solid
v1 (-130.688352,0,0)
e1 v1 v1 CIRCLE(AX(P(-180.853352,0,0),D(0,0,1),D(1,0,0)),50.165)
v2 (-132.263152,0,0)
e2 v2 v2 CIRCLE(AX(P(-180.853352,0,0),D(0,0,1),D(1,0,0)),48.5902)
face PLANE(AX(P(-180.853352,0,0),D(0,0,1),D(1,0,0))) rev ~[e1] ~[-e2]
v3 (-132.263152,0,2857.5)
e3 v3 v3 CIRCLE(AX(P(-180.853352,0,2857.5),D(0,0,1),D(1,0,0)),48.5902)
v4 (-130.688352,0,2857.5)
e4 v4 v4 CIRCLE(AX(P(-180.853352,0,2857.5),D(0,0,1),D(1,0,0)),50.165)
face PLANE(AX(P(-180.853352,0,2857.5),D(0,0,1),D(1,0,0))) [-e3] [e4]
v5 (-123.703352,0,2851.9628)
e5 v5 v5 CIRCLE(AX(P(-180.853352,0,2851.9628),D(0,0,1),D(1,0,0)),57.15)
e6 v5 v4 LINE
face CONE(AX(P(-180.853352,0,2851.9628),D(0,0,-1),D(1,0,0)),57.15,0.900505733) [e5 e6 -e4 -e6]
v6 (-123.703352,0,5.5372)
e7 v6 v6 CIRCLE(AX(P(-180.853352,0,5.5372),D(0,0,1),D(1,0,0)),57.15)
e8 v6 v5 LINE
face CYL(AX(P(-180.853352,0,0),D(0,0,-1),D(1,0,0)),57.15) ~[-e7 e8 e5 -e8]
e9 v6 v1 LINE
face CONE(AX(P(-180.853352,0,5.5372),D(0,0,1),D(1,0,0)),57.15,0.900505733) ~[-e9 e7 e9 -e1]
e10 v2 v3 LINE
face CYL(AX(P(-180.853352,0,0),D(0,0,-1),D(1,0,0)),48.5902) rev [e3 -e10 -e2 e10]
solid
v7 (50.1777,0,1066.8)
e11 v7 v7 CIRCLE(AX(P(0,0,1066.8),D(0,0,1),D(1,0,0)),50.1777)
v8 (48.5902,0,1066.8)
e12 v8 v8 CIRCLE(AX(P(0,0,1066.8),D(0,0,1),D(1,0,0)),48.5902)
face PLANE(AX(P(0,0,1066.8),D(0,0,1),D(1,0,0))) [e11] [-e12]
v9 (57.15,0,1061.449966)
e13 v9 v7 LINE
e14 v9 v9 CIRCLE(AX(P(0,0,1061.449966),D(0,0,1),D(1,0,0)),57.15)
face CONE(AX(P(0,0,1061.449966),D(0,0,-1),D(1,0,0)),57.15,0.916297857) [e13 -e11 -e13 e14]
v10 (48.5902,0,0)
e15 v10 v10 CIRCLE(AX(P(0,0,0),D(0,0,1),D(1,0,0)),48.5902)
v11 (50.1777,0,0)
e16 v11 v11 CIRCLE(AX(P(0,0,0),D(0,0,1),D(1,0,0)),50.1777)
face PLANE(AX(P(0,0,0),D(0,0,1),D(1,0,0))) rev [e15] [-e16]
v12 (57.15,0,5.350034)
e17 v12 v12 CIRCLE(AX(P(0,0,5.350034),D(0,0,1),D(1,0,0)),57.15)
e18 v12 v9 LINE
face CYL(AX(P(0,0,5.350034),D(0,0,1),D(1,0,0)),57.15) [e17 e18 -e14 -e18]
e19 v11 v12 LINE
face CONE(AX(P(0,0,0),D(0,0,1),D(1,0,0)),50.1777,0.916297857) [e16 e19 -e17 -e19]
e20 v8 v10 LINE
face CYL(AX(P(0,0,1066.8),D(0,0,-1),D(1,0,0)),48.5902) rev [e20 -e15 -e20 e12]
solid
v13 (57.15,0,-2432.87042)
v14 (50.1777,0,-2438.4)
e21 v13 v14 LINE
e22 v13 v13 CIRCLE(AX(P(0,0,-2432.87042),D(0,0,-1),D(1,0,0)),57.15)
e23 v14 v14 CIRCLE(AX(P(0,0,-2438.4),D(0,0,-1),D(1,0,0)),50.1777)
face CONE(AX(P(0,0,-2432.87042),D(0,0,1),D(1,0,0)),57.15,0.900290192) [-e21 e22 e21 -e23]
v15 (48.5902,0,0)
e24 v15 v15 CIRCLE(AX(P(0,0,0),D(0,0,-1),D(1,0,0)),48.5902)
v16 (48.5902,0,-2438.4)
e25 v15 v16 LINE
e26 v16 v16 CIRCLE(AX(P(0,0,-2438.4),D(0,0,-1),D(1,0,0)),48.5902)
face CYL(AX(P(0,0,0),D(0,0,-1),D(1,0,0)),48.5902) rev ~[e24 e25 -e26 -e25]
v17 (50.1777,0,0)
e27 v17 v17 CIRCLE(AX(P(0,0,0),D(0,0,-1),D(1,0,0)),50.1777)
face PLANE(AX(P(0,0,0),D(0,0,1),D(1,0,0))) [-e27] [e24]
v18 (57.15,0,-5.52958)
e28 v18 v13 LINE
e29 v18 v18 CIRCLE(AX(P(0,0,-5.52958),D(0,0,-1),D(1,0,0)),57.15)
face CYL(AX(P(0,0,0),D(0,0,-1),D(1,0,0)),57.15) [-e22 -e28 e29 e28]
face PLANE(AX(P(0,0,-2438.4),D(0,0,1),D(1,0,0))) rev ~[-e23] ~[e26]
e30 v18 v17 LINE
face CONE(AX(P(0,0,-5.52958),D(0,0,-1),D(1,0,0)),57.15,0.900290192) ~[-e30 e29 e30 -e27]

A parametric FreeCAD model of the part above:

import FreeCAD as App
import Part
import Sketcher
Q = App.Units.Quantity


def edges_at(feature, points):
    """Names of the edges that pass closest to the given points."""
    edges = feature.Shape.Edges
    near = lambda p: min(range(len(edges)), key=lambda i: edges[i].distToShape(Part.Vertex(*p))[0])
    return sorted({f"Edge{near(p) + 1}" for p in points})


def add_polygon(sketch, points):
    """Adds a closed chain of lines whose ends are joined by coincident constraints."""
    first, n = sketch.GeometryCount, len(points)
    for a, b in zip(points, points[1:] + points[:1]):
        sketch.addGeometry(Part.LineSegment(App.Vector(*a, 0), App.Vector(*b, 0)), False)
    for i in range(n):
        sketch.addConstraint(Sketcher.Constraint("Coincident", first + i, 2, first + (i + 1) % n, 1))

doc = App.newDocument("Part")
body = doc.addObject("PartDesign::Body", "Body")

# Sketch on XZ plane
sketch1 = body.newObject("Sketcher::SketchObject", "Sketch")
sketch1.AttachmentSupport = (doc.getObject("XZ_Plane"), [""])
sketch1.MapMode = "FlatFace"
add_polygon(sketch1, [(50.2, 0), (57.1, 5.4), (57.1, 1061.4), (50.2, 1066.8), (48.6, 1066.8), (48.6, 0)])  # lines 0-5
sketch1.addConstraint(Sketcher.Constraint("Vertical", 1))
sketch1.addConstraint(Sketcher.Constraint("Horizontal", 3))
sketch1.addConstraint(Sketcher.Constraint("Vertical", 4))
sketch1.addConstraint(Sketcher.Constraint("Horizontal", 5))
sketch1.addConstraint(Sketcher.Constraint("PointOnObject", 4, 2, -1))
sketch1.addConstraint(Sketcher.Constraint("Vertical", 2, 2, 5, 2))
sketch1.addConstraint(Sketcher.Constraint("Equal", 0, 2))
sketch1.addConstraint(Sketcher.Constraint("DistanceY", 4, 2, 4, 1, Q("42 in")))
sketch1.addConstraint(Sketcher.Constraint("Angle", 0, Q("37.5 deg")))
sketch1.addConstraint(Sketcher.Constraint("DistanceX", 3, 2, 3, 1, Q("0.0625 in")))
sketch1.addConstraint(Sketcher.Constraint("DistanceX", -1, 1, 0, 2, Q("2.25 in")))
sketch1.addConstraint(Sketcher.Constraint("DistanceX", -1, 1, 3, 2, Q("1.913 in")))
revolution = body.newObject("PartDesign::Revolution", "Revolution")
revolution.Profile = sketch1
revolution.ReferenceAxis = (sketch1, ["V_Axis"])
revolution.Angle = 360
body2 = doc.addObject("PartDesign::Body", "Body001")

# Sketch on XY plane
sketch2 = body2.newObject("Sketcher::SketchObject", "Sketch001")
sketch2.AttachmentSupport = (doc.getObject("XY_Plane001"), [""])
sketch2.MapMode = "FlatFace"
sketch2.addGeometry(Part.Circle(App.Vector(0, 0, 0), App.Vector(0, 0, 1), 57), False)
sketch2.addGeometry(Part.Circle(App.Vector(0, 0, 0), App.Vector(0, 0, 1), 49), False)
sketch2.addConstraint(Sketcher.Constraint("Coincident", 0, 3, -1, 1))
sketch2.addConstraint(Sketcher.Constraint("Coincident", 1, 3, -1, 1))
sketch2.addConstraint(Sketcher.Constraint("Diameter", 0, Q("4.5 in")))
sketch2.addConstraint(Sketcher.Constraint("Diameter", 1, Q("3.826 in")))

# Sketch on XZ plane
sketch3 = body2.newObject("Sketcher::SketchObject", "Sketch002")
sketch3.AttachmentSupport = (doc.getObject("XZ_Plane001"), [""])
sketch3.MapMode = "FlatFace"
sketch3.addGeometry(Part.LineSegment(App.Vector(0, 0, 0), App.Vector(0, -2438, 0)), False)
sketch3.addConstraint(Sketcher.Constraint("Vertical", 0))
sketch3.addConstraint(Sketcher.Constraint("Coincident", 0, 1, -1, 1))
sketch3.addConstraint(Sketcher.Constraint("DistanceY", 0, 2, 0, 1, Q("96 in")))
doc.recompute()

additivepipe = body2.newObject("PartDesign::AdditivePipe", "AdditivePipe")
additivepipe.Profile = sketch2
additivepipe.Spine = (sketch3, ["Edge1"])
doc.recompute()

chamfer = body2.newObject("PartDesign::Chamfer", "Chamfer")
chamfer.Base = (additivepipe, edges_at(additivepipe, [(-57.15, 0, -2438.4)]))
chamfer.ChamferType = "Two distances"
chamfer.Size = Q("0.2177 in")
chamfer.Size2 = Q("0.2745 in")
doc.recompute()

chamfer2 = body2.newObject("PartDesign::Chamfer", "Chamfer001")
chamfer2.Base = (chamfer, edges_at(chamfer, [(-57.15, 0, 0)]))
chamfer2.ChamferType = "Two distances"
chamfer2.Size = Q("0.2177 in")
chamfer2.Size2 = Q("0.2745 in")
body3 = doc.addObject("PartDesign::Body", "Body002")

# Sketch on XY plane
sketch4 = body3.newObject("Sketcher::SketchObject", "Sketch003")
sketch4.AttachmentSupport = (doc.getObject("XY_Plane002"), [""])
sketch4.MapMode = "FlatFace"
sketch4.addGeometry(Part.Circle(App.Vector(-181, 0, 0), App.Vector(0, 0, 1), 57), False)
sketch4.addGeometry(Part.Circle(App.Vector(-181, 0, 0), App.Vector(0, 0, 1), 49), False)
sketch4.addConstraint(Sketcher.Constraint("Coincident", 1, 3, 0, 3))
sketch4.addConstraint(Sketcher.Constraint("PointOnObject", 0, 3, -1))
sketch4.addConstraint(Sketcher.Constraint("Diameter", 0, Q("4.5 in")))
sketch4.addConstraint(Sketcher.Constraint("Diameter", 1, Q("3.826 in")))
sketch4.addConstraint(Sketcher.Constraint("DistanceX", 0, 3, -1, 1, Q("180.853352 mm")))
pad1 = body3.newObject("PartDesign::Pad", "Pad")
pad1.Profile = sketch4
pad1.Length = Q("112.5 in")
doc.recompute()

chamfer3 = body3.newObject("PartDesign::Chamfer", "Chamfer002")
chamfer3.Base = (pad1, edges_at(pad1, [(-238.003, 0, 0), (-238.003, 0, 2857.5)]))
chamfer3.ChamferType = "Two distances"
chamfer3.Size = Q("0.218 in")
chamfer3.Size2 = Q("0.275 in")

doc.recompute()
